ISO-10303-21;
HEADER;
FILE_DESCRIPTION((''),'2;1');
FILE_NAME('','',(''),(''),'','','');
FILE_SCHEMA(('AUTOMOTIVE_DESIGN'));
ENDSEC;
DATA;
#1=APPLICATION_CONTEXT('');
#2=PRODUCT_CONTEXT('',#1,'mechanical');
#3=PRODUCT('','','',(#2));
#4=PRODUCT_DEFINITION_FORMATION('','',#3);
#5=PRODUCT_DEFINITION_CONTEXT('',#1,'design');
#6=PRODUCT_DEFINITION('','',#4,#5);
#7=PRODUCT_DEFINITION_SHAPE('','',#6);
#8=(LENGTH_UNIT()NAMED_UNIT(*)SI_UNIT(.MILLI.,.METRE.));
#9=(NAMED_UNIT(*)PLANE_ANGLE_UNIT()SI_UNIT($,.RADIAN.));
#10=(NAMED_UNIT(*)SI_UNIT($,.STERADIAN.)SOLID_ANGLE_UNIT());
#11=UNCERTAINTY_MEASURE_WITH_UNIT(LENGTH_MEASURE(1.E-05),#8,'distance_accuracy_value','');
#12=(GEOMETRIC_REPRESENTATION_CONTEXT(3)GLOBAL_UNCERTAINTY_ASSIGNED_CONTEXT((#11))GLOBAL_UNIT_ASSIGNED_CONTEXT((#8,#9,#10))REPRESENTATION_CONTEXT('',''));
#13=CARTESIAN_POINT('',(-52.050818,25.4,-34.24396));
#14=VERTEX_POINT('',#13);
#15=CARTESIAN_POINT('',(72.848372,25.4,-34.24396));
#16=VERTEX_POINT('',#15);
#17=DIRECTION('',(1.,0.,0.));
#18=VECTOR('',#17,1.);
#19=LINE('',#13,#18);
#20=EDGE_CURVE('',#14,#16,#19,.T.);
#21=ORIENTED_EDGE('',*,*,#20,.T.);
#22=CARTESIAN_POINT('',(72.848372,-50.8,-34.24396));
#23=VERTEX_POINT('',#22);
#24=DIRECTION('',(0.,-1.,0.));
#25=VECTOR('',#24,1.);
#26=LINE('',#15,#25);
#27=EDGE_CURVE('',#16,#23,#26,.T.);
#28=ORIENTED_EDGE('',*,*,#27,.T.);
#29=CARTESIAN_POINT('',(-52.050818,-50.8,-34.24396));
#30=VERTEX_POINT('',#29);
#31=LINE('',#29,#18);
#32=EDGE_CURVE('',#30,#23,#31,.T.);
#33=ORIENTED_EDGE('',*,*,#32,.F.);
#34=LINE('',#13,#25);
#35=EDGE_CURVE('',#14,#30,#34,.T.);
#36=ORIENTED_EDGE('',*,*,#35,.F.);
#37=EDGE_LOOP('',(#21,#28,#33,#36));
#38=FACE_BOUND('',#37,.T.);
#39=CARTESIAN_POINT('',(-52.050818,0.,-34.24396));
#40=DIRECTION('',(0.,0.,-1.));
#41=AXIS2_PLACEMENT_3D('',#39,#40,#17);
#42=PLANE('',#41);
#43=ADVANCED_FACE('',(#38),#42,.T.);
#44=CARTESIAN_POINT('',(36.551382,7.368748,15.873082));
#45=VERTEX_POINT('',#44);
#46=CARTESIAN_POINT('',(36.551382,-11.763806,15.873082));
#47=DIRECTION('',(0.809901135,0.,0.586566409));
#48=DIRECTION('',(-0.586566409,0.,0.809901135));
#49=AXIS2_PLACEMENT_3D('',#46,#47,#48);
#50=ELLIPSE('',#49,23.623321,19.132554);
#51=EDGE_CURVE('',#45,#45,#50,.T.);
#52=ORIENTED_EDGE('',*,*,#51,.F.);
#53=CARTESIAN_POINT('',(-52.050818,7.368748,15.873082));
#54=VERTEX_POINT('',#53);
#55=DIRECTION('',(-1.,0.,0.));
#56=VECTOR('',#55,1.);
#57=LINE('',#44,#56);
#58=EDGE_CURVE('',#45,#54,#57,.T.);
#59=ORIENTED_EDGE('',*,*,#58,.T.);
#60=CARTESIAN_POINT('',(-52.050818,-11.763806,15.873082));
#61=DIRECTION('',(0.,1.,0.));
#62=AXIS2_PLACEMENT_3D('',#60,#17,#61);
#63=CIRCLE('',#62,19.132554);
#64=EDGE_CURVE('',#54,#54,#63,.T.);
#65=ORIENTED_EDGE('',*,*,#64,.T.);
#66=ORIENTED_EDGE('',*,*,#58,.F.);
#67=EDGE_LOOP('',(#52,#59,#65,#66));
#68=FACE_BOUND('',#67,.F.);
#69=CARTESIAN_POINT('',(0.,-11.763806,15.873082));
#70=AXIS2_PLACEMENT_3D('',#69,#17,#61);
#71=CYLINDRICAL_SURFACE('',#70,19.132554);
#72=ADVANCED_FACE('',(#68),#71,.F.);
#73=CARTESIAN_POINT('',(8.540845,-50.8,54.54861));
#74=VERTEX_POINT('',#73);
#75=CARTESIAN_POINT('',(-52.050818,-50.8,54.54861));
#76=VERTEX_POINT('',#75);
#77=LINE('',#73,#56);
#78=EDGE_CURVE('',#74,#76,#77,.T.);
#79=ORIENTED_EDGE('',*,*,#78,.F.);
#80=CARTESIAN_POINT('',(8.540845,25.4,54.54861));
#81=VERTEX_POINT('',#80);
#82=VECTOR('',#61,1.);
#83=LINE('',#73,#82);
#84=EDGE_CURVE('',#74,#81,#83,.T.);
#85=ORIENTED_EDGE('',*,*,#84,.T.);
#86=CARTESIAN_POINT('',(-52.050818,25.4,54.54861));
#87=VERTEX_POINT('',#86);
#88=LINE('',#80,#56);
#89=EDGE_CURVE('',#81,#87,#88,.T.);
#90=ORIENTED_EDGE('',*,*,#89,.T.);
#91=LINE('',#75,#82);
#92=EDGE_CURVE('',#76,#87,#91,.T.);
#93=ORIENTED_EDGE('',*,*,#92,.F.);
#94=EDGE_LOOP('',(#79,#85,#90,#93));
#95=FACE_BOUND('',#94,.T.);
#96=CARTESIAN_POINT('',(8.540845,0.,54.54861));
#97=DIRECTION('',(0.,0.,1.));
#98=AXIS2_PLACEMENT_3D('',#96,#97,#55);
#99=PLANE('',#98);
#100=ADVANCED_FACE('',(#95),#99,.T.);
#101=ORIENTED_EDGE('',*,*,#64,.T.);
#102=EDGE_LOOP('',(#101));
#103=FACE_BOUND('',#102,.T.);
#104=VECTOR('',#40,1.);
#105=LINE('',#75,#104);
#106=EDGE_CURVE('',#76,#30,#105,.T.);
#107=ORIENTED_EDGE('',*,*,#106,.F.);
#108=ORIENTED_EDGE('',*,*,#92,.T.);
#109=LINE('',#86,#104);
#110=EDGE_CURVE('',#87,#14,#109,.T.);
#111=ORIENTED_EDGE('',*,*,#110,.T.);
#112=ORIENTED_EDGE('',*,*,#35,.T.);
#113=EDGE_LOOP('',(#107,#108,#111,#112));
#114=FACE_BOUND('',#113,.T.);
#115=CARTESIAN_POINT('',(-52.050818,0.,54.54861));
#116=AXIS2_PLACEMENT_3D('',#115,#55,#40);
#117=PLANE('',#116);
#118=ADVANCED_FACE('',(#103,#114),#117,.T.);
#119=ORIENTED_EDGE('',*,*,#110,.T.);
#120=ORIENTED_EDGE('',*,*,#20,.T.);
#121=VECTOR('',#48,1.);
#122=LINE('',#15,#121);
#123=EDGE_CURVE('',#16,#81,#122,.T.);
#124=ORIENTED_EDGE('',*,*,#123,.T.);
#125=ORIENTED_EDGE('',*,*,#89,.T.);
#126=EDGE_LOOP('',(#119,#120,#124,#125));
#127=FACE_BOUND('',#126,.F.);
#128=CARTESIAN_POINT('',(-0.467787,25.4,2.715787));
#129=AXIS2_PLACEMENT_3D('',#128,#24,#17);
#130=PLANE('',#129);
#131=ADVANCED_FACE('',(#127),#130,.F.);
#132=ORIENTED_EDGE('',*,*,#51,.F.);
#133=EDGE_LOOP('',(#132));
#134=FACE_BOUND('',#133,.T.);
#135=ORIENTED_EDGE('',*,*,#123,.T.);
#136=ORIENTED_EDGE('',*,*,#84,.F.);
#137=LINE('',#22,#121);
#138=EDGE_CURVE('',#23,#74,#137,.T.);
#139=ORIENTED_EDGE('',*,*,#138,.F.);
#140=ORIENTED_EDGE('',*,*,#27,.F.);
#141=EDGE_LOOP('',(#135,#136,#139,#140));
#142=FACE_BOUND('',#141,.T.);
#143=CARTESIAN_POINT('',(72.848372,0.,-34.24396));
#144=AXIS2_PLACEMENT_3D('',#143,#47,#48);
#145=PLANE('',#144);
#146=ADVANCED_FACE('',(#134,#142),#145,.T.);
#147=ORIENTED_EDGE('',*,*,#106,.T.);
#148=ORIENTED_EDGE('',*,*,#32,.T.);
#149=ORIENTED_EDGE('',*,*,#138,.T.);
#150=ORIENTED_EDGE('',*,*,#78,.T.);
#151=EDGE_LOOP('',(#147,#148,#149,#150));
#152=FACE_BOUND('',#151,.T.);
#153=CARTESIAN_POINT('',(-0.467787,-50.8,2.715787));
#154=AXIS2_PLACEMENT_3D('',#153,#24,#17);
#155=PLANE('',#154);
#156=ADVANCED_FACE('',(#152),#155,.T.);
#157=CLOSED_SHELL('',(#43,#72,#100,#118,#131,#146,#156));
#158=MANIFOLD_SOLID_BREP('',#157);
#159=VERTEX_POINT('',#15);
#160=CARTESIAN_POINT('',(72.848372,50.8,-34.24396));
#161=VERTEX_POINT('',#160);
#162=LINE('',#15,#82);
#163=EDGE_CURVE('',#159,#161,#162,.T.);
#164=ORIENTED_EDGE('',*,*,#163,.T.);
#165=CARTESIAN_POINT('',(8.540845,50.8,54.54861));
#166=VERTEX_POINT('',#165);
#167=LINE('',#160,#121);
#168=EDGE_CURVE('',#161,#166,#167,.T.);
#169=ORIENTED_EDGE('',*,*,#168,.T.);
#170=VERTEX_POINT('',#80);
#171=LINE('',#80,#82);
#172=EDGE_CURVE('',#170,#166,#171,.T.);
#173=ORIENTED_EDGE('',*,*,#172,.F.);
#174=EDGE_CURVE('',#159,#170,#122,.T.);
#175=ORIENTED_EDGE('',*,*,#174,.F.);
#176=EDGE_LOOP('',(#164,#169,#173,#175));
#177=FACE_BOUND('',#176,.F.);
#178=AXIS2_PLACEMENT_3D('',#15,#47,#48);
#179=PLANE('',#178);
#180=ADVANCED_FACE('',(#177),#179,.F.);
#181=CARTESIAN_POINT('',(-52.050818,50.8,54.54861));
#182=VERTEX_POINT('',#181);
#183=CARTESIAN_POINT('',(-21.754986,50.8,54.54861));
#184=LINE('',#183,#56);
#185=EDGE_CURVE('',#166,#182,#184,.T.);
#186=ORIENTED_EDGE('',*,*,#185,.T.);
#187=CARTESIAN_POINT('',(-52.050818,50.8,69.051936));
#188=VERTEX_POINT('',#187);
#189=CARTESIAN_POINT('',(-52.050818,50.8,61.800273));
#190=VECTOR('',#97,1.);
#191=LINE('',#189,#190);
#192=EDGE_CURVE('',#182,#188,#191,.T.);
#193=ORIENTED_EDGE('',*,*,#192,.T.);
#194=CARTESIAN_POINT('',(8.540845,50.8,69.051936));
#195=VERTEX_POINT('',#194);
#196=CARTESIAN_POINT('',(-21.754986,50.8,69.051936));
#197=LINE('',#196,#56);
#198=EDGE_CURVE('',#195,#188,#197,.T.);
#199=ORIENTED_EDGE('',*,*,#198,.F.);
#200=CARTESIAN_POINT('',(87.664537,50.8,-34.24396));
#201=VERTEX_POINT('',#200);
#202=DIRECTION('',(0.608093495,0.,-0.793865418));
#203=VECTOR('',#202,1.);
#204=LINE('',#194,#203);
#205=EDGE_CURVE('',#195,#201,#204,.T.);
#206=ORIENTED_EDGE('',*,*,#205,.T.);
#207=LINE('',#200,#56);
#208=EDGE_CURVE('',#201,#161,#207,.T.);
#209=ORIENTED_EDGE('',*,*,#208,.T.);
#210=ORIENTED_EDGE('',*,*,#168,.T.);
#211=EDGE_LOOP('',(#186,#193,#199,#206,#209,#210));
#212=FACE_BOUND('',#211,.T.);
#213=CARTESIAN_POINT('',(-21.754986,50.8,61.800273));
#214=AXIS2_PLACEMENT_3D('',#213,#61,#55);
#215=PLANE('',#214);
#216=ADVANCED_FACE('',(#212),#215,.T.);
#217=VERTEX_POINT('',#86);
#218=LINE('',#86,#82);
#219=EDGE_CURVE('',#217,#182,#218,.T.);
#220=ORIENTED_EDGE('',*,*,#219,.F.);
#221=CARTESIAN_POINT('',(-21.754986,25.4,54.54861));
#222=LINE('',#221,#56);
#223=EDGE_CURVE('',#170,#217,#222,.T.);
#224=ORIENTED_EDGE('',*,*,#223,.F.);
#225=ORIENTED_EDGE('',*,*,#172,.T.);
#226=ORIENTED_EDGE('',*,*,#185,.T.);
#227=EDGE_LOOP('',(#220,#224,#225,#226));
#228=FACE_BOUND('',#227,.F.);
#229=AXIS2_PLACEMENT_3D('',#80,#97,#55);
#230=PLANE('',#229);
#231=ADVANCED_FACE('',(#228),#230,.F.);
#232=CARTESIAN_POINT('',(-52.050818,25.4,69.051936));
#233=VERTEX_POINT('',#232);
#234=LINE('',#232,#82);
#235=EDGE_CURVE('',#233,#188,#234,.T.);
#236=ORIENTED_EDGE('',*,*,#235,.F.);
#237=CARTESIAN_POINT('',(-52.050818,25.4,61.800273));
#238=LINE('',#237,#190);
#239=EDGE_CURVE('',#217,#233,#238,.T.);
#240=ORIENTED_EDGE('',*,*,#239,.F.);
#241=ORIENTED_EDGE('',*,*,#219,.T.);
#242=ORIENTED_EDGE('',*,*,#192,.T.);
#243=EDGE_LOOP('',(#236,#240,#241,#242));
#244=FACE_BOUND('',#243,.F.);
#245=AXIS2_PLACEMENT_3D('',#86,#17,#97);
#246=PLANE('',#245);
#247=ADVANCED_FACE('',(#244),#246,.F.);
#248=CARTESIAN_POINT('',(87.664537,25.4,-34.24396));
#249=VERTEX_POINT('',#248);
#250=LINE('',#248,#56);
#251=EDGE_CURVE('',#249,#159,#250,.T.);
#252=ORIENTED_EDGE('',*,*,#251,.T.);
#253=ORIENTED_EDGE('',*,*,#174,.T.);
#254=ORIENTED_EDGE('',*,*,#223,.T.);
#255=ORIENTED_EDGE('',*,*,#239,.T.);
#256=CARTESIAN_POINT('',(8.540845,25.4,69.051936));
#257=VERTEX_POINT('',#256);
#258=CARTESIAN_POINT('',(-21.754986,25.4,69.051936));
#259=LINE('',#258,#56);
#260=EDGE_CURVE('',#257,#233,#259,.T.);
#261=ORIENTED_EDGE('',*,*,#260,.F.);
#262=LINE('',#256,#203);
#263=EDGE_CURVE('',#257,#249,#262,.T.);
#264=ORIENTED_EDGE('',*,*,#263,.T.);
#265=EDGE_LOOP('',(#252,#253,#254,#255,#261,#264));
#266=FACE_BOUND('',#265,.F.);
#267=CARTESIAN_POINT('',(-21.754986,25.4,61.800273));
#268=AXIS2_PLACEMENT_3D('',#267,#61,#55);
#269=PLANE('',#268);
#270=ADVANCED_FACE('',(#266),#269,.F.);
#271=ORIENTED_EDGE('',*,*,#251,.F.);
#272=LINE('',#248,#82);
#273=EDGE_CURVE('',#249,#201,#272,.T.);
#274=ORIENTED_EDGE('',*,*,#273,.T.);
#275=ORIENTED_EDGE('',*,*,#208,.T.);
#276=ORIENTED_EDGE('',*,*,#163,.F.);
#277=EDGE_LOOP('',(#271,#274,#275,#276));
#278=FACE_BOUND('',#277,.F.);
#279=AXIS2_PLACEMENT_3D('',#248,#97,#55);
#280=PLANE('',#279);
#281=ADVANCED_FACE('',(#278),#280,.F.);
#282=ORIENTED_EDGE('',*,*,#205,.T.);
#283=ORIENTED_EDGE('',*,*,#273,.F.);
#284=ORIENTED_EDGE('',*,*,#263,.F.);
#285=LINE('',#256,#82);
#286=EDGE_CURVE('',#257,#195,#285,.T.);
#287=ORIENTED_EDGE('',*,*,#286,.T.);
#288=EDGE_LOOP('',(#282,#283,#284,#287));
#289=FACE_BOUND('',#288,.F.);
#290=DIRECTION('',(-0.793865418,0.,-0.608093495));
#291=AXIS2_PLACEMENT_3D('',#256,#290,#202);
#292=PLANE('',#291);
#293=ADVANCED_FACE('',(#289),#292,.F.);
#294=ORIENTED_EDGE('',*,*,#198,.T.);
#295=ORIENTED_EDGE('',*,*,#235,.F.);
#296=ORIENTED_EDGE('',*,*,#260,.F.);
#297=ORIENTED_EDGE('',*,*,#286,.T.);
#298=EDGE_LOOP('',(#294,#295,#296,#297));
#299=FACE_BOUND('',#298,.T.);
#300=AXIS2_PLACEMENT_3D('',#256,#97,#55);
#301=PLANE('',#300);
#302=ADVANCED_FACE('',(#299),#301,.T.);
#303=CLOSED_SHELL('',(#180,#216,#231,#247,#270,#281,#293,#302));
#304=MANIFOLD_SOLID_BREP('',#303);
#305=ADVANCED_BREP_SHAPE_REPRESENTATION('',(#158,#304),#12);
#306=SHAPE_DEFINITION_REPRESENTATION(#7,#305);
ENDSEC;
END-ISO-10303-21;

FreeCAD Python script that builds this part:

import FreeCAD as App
import Part
import Sketcher
from FreeCAD import Vector
Q = App.Units.Quantity

doc = App.newDocument("Part")
body = doc.addObject("PartDesign::Body", "Body")

# Sketch on XZ plane
sketch1 = body.newObject("Sketcher::SketchObject", "Sketch")
sketch1.AttachmentSupport = (doc.getObject("XZ_Plane"), [""])
sketch1.MapMode = "FlatFace"
sketch1.addGeometry([
    Part.LineSegment(Vector(-52, 55, 0), Vector(-52, -34, 0)),
    Part.LineSegment(Vector(-52, -34, 0), Vector(73, -34, 0)),
    Part.LineSegment(Vector(73, -34, 0), Vector(9, 55, 0)),
    Part.LineSegment(Vector(9, 55, 0), Vector(-52, 55, 0)),
], False)
sketch1.addConstraint([
    Sketcher.Constraint("Coincident", 0, 2, 1, 1),
    Sketcher.Constraint("Coincident", 1, 2, 2, 1),
    Sketcher.Constraint("Coincident", 2, 2, 3, 1),
    Sketcher.Constraint("Coincident", 3, 2, 0, 1),
    Sketcher.Constraint("Vertical", 0),
    Sketcher.Constraint("Horizontal", 1),
    Sketcher.Constraint("Horizontal", 3),
    Sketcher.Constraint("DistanceX", 1, 1, 1, 2, 124.89919),
    Sketcher.Constraint("DistanceY", 0, 2, 0, 1, 88.79257),
    Sketcher.Constraint("Distance", 2, 109.633838),
    Sketcher.Constraint("DistanceY", 0, 2, -1, 1, 34.24396),
    Sketcher.Constraint("DistanceX", 0, 2, -1, 1, 52.050818),
])
pad1 = body.newObject("PartDesign::Pad", "Pad")
pad1.Profile = sketch1
pad1.Type = "TwoLengths"
pad1.Length = Q("2 in")
pad1.Length2 = Q("1 in")

# Sketch on YZ plane
sketch2 = body.newObject("Sketcher::SketchObject", "Sketch001")
sketch2.AttachmentSupport = (doc.getObject("YZ_Plane"), [""])
sketch2.MapMode = "FlatFace"
sketch2.addGeometry(Part.Circle(Vector(-12, 16, 0), Vector(0, 0, 1), 19), False)
sketch2.addConstraint([
    Sketcher.Constraint("Diameter", 0, 38.265109),
    Sketcher.Constraint("DistanceY", -1, 1, 0, 3, 15.873082),
    Sketcher.Constraint("DistanceX", 0, 3, -1, 1, 11.763806),
])
pocket1 = body.newObject("PartDesign::Pocket", "Pocket")
pocket1.Profile = sketch2
pocket1.Type = "ThroughAll"
pocket1.Midplane = True
body2 = doc.addObject("PartDesign::Body", "Body001")

# Sketch on XZ plane
sketch3 = body2.newObject("Sketcher::SketchObject", "Sketch002")
sketch3.AttachmentSupport = (doc.getObject("XZ_Plane001"), [""])
sketch3.MapMode = "FlatFace"
sketch3.AttachmentOffset = App.Placement(Vector(0, 0, -1 * 25.4), App.Rotation())
sketch3.addGeometry([
    Part.LineSegment(Vector(9, 55, 0), Vector(-52, 55, 0)),  # 0
    Part.LineSegment(Vector(-52, 55, 0), Vector(-52, 69, 0)),  # 1
    Part.LineSegment(Vector(-52, 69, 0), Vector(9, 69, 0)),  # 2
    Part.LineSegment(Vector(9, 69, 0), Vector(88, -34, 0)),  # 3
    Part.LineSegment(Vector(88, -34, 0), Vector(73, -34, 0)),  # 4
    Part.LineSegment(Vector(73, -34, 0), Vector(9, 55, 0)),  # 5
], False)
sketch3.addConstraint([
    Sketcher.Constraint("Coincident", 0, 2, 1, 1),
    Sketcher.Constraint("Coincident", 1, 2, 2, 1),
    Sketcher.Constraint("Coincident", 2, 2, 3, 1),
    Sketcher.Constraint("Coincident", 3, 2, 4, 1),
    Sketcher.Constraint("Coincident", 4, 2, 5, 1),
    Sketcher.Constraint("Coincident", 5, 2, 0, 1),
    Sketcher.Constraint("Horizontal", 0),
    Sketcher.Constraint("Vertical", 1),
    Sketcher.Constraint("Horizontal", 2),
    Sketcher.Constraint("Horizontal", 4),
    Sketcher.Constraint("Vertical", 2, 2, 5, 2),
    Sketcher.Constraint("Distance", 3, 130.117642),
    Sketcher.Constraint("Distance", 5, 109.633838),
    Sketcher.Constraint("DistanceX", 0, 2, 0, 1, 60.591663),
    Sketcher.Constraint("DistanceX", 4, 2, 4, 1, 14.816165),
    Sketcher.Constraint("DistanceY", 1, 1, 1, 2, 14.503326),
    Sketcher.Constraint("DistanceY", -1, 1, 0, 2, 54.54861),
    Sketcher.Constraint("DistanceX", 0, 2, -1, 1, 52.050818),
])
pad2 = body2.newObject("PartDesign::Pad", "Pad001")
pad2.Profile = sketch3
pad2.Length = Q("1 in")
pad2.Reversed = True

doc.recompute()
